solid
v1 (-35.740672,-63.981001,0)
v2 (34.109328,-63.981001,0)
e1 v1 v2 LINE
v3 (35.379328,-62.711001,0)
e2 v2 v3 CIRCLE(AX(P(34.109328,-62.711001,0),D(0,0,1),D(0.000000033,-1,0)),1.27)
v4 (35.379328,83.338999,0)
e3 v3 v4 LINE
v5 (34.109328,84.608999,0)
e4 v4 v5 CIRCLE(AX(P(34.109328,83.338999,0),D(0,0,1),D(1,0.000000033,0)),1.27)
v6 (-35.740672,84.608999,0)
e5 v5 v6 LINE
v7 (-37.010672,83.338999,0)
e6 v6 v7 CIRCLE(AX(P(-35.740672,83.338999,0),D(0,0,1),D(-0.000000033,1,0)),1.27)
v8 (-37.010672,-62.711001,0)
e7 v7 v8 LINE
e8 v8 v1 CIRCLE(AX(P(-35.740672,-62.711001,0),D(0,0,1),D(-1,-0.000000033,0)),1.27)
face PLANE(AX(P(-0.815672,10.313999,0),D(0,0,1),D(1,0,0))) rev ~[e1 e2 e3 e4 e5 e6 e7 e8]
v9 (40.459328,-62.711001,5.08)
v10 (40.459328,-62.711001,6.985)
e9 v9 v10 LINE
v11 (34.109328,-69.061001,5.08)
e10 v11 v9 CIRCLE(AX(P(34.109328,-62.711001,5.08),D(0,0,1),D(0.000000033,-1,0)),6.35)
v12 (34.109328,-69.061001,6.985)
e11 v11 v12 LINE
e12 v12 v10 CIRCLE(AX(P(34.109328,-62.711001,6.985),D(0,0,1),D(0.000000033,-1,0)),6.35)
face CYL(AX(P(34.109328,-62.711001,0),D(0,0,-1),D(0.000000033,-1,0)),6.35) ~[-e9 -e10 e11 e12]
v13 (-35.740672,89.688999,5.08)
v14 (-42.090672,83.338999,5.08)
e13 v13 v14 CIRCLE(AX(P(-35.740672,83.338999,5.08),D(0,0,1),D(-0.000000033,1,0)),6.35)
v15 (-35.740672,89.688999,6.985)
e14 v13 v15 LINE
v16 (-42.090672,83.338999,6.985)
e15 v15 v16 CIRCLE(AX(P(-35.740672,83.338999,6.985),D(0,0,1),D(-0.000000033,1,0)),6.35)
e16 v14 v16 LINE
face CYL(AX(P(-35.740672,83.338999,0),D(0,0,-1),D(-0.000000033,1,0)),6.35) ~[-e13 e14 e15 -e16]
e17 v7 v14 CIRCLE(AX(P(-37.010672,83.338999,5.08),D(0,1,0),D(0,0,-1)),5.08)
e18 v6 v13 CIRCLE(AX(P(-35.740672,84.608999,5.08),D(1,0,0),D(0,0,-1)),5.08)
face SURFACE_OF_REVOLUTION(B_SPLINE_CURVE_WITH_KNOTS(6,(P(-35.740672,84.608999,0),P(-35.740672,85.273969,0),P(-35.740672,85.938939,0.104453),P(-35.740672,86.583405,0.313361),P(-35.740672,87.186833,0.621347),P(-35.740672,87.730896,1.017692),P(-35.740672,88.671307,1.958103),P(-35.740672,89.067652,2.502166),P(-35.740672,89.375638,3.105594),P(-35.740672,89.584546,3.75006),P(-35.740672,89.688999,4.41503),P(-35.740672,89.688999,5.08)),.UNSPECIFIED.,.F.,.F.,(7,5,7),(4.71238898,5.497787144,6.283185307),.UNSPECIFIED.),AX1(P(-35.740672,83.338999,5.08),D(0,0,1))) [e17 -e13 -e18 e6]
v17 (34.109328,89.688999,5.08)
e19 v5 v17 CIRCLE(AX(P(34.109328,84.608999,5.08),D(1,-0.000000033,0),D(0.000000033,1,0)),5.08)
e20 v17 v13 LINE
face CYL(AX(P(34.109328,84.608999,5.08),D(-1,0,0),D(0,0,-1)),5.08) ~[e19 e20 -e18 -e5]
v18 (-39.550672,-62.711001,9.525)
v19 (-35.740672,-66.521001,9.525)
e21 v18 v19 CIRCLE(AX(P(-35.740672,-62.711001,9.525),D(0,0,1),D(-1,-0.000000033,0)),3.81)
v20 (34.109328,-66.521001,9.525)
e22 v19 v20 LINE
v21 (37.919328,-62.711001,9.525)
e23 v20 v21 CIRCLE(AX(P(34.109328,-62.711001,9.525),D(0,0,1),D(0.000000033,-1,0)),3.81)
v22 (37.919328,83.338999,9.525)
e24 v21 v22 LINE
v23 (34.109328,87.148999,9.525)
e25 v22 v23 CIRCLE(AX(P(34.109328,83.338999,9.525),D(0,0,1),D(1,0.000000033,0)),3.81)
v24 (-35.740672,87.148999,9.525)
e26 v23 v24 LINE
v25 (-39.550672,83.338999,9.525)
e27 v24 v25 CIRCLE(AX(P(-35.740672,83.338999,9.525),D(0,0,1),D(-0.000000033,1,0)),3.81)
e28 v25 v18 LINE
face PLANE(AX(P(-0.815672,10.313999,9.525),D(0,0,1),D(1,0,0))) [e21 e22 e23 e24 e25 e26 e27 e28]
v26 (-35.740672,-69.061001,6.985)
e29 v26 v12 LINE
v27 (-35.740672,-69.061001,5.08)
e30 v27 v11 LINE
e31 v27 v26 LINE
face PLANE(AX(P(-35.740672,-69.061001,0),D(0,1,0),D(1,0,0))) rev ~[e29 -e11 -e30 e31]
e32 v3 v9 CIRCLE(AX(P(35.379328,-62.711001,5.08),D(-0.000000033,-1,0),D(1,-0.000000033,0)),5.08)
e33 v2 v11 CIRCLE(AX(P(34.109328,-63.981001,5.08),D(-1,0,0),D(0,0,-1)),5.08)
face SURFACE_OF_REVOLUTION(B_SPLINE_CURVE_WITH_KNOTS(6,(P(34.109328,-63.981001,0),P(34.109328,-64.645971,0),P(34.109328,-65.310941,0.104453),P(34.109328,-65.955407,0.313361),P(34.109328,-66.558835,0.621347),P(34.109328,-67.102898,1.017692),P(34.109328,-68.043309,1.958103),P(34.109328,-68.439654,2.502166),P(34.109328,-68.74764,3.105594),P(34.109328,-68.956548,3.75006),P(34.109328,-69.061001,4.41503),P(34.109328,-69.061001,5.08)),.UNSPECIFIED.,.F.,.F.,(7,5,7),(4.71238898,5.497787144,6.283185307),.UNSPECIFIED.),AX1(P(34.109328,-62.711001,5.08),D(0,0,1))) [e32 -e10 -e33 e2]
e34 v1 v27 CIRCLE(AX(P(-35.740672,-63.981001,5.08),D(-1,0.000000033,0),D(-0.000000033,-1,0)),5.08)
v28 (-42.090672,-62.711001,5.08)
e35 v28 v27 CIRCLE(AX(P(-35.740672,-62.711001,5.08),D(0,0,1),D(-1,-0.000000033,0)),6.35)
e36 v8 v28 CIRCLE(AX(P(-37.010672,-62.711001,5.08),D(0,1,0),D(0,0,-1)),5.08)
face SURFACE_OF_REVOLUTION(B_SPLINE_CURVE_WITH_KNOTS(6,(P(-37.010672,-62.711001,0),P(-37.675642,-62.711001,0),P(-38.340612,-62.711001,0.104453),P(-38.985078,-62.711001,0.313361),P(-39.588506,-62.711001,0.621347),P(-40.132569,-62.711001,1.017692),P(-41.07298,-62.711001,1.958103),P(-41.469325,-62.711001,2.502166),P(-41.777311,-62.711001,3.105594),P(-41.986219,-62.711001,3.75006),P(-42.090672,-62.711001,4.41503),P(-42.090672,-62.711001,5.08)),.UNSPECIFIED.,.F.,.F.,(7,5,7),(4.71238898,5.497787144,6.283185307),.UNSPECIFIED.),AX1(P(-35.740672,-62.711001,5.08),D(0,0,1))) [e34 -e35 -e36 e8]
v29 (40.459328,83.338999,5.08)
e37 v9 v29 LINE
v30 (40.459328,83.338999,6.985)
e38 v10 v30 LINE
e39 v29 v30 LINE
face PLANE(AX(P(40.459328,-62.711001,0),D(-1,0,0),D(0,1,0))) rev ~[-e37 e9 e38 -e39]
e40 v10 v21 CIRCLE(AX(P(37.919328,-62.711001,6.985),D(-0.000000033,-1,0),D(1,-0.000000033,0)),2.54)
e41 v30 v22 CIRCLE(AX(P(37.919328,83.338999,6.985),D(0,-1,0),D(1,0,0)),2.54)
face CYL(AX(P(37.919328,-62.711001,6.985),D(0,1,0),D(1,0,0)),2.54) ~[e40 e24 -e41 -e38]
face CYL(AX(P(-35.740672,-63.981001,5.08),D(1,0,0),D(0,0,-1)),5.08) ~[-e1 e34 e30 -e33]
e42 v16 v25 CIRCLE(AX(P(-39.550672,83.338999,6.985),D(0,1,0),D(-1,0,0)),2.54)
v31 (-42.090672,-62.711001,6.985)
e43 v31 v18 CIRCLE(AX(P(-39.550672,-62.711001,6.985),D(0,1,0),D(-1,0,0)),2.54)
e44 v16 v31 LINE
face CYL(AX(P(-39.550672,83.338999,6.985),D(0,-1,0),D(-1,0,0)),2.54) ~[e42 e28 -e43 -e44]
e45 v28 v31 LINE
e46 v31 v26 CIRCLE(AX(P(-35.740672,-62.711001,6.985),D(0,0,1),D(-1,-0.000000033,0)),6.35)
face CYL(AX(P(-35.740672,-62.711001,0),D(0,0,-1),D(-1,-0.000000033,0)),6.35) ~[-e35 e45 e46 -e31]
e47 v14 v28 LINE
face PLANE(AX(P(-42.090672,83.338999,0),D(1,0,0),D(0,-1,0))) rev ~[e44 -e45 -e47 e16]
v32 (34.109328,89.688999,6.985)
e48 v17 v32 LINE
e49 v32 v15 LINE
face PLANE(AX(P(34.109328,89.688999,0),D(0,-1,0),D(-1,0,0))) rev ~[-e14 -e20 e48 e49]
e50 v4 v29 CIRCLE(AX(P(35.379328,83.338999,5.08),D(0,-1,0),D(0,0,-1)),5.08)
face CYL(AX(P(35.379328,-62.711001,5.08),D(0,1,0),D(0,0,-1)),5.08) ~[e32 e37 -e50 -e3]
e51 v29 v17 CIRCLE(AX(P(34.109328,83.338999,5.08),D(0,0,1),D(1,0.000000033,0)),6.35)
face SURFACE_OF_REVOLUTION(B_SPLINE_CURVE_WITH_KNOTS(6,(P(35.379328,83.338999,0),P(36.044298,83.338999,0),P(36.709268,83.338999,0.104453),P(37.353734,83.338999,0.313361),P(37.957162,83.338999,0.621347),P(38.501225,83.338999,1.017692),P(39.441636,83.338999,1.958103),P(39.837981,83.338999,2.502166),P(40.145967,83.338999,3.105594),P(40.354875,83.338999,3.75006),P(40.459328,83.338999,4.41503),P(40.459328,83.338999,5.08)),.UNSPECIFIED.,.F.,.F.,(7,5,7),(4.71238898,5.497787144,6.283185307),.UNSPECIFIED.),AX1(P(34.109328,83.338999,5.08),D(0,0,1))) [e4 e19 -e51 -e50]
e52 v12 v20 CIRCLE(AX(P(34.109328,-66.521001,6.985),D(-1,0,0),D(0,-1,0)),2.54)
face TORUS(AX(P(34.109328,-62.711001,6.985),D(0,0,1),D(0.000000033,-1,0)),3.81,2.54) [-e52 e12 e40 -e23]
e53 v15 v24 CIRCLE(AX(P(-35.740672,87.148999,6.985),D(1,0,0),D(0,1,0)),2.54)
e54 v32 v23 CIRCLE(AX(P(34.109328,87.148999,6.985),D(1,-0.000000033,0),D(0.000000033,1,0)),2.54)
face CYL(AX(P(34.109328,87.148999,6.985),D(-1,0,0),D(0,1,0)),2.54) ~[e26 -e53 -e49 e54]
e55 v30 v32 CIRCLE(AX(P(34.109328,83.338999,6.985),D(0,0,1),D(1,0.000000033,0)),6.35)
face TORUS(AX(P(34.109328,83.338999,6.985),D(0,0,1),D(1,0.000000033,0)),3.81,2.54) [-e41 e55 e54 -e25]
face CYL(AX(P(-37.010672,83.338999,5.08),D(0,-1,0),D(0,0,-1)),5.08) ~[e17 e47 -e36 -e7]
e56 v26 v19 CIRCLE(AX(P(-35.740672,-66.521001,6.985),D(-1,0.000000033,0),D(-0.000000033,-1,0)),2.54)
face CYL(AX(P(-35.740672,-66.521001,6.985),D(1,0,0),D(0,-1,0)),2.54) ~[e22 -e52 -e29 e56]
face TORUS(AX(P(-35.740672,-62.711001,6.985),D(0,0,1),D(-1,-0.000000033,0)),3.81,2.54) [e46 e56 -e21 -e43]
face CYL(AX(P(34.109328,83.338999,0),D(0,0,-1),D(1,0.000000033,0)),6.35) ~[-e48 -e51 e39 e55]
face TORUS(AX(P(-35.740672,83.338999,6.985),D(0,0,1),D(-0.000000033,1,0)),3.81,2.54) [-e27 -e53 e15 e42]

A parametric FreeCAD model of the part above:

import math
import FreeCAD as App
import Part
import Sketcher
from FreeCAD import Vector
Q = App.Units.Quantity


def edges_at(feature, points):
    """Names of the edges that pass closest to the given points."""
    edges = feature.Shape.Edges
    near = lambda p: min(range(len(edges)), key=lambda i: edges[i].distToShape(Part.Vertex(*p))[0])
    return sorted({f"Edge{near(p) + 1}" for p in points})

doc = App.newDocument("Part")
params = doc.addObject("Spreadsheet::Sheet", "Params")
for row, (alias, value) in enumerate([
    ("sketch1_radius", "0.25 in"),
    ("pad1_length", "0.375 in"),
    ("fillet_radius", "0.1 in"),
    ("fillet2_radius", "0.2 in"),
], start=1):
    params.set(f"A{row}", alias)
    params.set(f"B{row}", "=" + value)
    params.setAlias(f"B{row}", alias)

body = doc.addObject("PartDesign::Body", "Body")

sketch1 = body.newObject("Sketcher::SketchObject", "Sketch")
sketch1.AttachmentSupport = (doc.getObject("XY_Plane"), [""])
sketch1.MapMode = "FlatFace"
sketch1.addGeometry([
    Part.LineSegment(Vector(34, 90, 0), Vector(-36, 90, 0)),
    Part.ArcOfCircle(Part.Circle(Vector(-36, 83, 0), Vector(0, 0, 1), 6), math.radians(90), math.radians(180)),
    Part.LineSegment(Vector(-42, 83, 0), Vector(-42, -63, 0)),
    Part.ArcOfCircle(Part.Circle(Vector(-36, -63, 0), Vector(0, 0, 1), 6), math.radians(-180), math.radians(-90)),
    Part.LineSegment(Vector(-36, -69, 0), Vector(34, -69, 0)),
    Part.ArcOfCircle(Part.Circle(Vector(34, -63, 0), Vector(0, 0, 1), 6), math.radians(-90), math.radians(0)),
    Part.LineSegment(Vector(40, -63, 0), Vector(40, 83, 0)),
    Part.ArcOfCircle(Part.Circle(Vector(34, 83, 0), Vector(0, 0, 1), 6), math.radians(0), math.radians(90)),
], False)
sketch1.addConstraint([
    Sketcher.Constraint("Tangent", 0, 2, 1, 1),
    Sketcher.Constraint("Tangent", 1, 2, 2, 1),
    Sketcher.Constraint("Tangent", 2, 2, 3, 1),
    Sketcher.Constraint("Tangent", 3, 2, 4, 1),
    Sketcher.Constraint("Tangent", 4, 2, 5, 1),
    Sketcher.Constraint("Tangent", 5, 2, 6, 1),
    Sketcher.Constraint("Tangent", 6, 2, 7, 1),
    Sketcher.Constraint("Tangent", 7, 2, 0, 1),
    Sketcher.Constraint("Horizontal", 0),
    Sketcher.Constraint("Vertical", 2),
    Sketcher.Constraint("Horizontal", 4),
    Sketcher.Constraint("Vertical", 6),
    Sketcher.Constraint("Equal", 1, 3),
    Sketcher.Constraint("Equal", 3, 5),
    Sketcher.Constraint("Equal", 5, 7),
    Sketcher.Constraint("Radius", 1, Q("0.25 in")),
    Sketcher.Constraint("DistanceY", 3, 3, 0, 2, Q("6 in")),
    Sketcher.Constraint("DistanceX", 1, 2, 7, 3, Q("3 in")),
    Sketcher.Constraint("DistanceY", -1, 1, 1, 3, Q("83.338999 mm")),
    Sketcher.Constraint("DistanceX", 1, 3, -1, 1, Q("35.740672 mm")),
])
sketch1.setExpression("Constraints[15]", "Params.sketch1_radius")
pad1 = body.newObject("PartDesign::Pad", "Pad")
pad1.Profile = sketch1
pad1.setExpression("Length", "Params.pad1_length")
doc.recompute()

fillet = body.newObject("PartDesign::Fillet", "Fillet")
fillet.Base = (pad1, edges_at(pad1, [
    (-42.091, 10.314, 9.525),
    (-40.231, -67.201, 9.525),
    (-0.816, -69.061, 9.525),
    (38.599, -67.201, 9.525),
    (40.459, 10.314, 9.525),
    (38.599, 87.829, 9.525),
    (-0.816, 89.689, 9.525),
    (-40.231, 87.829, 9.525),
]))
fillet.setExpression("Radius", "Params.fillet_radius")
doc.recompute()

fillet2 = body.newObject("PartDesign::Fillet", "Fillet001")
fillet2.Base = (fillet, edges_at(fillet, [
    (-42.091, 10.314, 0),
    (-40.231, -67.201, 0),
    (-0.816, -69.061, 0),
    (38.599, -67.201, 0),
    (40.459, 10.314, 0),
    (38.599, 87.829, 0),
    (-0.816, 89.689, 0),
    (-40.231, 87.829, 0),
]))
fillet2.setExpression("Radius", "Params.fillet2_radius")

doc.recompute()
